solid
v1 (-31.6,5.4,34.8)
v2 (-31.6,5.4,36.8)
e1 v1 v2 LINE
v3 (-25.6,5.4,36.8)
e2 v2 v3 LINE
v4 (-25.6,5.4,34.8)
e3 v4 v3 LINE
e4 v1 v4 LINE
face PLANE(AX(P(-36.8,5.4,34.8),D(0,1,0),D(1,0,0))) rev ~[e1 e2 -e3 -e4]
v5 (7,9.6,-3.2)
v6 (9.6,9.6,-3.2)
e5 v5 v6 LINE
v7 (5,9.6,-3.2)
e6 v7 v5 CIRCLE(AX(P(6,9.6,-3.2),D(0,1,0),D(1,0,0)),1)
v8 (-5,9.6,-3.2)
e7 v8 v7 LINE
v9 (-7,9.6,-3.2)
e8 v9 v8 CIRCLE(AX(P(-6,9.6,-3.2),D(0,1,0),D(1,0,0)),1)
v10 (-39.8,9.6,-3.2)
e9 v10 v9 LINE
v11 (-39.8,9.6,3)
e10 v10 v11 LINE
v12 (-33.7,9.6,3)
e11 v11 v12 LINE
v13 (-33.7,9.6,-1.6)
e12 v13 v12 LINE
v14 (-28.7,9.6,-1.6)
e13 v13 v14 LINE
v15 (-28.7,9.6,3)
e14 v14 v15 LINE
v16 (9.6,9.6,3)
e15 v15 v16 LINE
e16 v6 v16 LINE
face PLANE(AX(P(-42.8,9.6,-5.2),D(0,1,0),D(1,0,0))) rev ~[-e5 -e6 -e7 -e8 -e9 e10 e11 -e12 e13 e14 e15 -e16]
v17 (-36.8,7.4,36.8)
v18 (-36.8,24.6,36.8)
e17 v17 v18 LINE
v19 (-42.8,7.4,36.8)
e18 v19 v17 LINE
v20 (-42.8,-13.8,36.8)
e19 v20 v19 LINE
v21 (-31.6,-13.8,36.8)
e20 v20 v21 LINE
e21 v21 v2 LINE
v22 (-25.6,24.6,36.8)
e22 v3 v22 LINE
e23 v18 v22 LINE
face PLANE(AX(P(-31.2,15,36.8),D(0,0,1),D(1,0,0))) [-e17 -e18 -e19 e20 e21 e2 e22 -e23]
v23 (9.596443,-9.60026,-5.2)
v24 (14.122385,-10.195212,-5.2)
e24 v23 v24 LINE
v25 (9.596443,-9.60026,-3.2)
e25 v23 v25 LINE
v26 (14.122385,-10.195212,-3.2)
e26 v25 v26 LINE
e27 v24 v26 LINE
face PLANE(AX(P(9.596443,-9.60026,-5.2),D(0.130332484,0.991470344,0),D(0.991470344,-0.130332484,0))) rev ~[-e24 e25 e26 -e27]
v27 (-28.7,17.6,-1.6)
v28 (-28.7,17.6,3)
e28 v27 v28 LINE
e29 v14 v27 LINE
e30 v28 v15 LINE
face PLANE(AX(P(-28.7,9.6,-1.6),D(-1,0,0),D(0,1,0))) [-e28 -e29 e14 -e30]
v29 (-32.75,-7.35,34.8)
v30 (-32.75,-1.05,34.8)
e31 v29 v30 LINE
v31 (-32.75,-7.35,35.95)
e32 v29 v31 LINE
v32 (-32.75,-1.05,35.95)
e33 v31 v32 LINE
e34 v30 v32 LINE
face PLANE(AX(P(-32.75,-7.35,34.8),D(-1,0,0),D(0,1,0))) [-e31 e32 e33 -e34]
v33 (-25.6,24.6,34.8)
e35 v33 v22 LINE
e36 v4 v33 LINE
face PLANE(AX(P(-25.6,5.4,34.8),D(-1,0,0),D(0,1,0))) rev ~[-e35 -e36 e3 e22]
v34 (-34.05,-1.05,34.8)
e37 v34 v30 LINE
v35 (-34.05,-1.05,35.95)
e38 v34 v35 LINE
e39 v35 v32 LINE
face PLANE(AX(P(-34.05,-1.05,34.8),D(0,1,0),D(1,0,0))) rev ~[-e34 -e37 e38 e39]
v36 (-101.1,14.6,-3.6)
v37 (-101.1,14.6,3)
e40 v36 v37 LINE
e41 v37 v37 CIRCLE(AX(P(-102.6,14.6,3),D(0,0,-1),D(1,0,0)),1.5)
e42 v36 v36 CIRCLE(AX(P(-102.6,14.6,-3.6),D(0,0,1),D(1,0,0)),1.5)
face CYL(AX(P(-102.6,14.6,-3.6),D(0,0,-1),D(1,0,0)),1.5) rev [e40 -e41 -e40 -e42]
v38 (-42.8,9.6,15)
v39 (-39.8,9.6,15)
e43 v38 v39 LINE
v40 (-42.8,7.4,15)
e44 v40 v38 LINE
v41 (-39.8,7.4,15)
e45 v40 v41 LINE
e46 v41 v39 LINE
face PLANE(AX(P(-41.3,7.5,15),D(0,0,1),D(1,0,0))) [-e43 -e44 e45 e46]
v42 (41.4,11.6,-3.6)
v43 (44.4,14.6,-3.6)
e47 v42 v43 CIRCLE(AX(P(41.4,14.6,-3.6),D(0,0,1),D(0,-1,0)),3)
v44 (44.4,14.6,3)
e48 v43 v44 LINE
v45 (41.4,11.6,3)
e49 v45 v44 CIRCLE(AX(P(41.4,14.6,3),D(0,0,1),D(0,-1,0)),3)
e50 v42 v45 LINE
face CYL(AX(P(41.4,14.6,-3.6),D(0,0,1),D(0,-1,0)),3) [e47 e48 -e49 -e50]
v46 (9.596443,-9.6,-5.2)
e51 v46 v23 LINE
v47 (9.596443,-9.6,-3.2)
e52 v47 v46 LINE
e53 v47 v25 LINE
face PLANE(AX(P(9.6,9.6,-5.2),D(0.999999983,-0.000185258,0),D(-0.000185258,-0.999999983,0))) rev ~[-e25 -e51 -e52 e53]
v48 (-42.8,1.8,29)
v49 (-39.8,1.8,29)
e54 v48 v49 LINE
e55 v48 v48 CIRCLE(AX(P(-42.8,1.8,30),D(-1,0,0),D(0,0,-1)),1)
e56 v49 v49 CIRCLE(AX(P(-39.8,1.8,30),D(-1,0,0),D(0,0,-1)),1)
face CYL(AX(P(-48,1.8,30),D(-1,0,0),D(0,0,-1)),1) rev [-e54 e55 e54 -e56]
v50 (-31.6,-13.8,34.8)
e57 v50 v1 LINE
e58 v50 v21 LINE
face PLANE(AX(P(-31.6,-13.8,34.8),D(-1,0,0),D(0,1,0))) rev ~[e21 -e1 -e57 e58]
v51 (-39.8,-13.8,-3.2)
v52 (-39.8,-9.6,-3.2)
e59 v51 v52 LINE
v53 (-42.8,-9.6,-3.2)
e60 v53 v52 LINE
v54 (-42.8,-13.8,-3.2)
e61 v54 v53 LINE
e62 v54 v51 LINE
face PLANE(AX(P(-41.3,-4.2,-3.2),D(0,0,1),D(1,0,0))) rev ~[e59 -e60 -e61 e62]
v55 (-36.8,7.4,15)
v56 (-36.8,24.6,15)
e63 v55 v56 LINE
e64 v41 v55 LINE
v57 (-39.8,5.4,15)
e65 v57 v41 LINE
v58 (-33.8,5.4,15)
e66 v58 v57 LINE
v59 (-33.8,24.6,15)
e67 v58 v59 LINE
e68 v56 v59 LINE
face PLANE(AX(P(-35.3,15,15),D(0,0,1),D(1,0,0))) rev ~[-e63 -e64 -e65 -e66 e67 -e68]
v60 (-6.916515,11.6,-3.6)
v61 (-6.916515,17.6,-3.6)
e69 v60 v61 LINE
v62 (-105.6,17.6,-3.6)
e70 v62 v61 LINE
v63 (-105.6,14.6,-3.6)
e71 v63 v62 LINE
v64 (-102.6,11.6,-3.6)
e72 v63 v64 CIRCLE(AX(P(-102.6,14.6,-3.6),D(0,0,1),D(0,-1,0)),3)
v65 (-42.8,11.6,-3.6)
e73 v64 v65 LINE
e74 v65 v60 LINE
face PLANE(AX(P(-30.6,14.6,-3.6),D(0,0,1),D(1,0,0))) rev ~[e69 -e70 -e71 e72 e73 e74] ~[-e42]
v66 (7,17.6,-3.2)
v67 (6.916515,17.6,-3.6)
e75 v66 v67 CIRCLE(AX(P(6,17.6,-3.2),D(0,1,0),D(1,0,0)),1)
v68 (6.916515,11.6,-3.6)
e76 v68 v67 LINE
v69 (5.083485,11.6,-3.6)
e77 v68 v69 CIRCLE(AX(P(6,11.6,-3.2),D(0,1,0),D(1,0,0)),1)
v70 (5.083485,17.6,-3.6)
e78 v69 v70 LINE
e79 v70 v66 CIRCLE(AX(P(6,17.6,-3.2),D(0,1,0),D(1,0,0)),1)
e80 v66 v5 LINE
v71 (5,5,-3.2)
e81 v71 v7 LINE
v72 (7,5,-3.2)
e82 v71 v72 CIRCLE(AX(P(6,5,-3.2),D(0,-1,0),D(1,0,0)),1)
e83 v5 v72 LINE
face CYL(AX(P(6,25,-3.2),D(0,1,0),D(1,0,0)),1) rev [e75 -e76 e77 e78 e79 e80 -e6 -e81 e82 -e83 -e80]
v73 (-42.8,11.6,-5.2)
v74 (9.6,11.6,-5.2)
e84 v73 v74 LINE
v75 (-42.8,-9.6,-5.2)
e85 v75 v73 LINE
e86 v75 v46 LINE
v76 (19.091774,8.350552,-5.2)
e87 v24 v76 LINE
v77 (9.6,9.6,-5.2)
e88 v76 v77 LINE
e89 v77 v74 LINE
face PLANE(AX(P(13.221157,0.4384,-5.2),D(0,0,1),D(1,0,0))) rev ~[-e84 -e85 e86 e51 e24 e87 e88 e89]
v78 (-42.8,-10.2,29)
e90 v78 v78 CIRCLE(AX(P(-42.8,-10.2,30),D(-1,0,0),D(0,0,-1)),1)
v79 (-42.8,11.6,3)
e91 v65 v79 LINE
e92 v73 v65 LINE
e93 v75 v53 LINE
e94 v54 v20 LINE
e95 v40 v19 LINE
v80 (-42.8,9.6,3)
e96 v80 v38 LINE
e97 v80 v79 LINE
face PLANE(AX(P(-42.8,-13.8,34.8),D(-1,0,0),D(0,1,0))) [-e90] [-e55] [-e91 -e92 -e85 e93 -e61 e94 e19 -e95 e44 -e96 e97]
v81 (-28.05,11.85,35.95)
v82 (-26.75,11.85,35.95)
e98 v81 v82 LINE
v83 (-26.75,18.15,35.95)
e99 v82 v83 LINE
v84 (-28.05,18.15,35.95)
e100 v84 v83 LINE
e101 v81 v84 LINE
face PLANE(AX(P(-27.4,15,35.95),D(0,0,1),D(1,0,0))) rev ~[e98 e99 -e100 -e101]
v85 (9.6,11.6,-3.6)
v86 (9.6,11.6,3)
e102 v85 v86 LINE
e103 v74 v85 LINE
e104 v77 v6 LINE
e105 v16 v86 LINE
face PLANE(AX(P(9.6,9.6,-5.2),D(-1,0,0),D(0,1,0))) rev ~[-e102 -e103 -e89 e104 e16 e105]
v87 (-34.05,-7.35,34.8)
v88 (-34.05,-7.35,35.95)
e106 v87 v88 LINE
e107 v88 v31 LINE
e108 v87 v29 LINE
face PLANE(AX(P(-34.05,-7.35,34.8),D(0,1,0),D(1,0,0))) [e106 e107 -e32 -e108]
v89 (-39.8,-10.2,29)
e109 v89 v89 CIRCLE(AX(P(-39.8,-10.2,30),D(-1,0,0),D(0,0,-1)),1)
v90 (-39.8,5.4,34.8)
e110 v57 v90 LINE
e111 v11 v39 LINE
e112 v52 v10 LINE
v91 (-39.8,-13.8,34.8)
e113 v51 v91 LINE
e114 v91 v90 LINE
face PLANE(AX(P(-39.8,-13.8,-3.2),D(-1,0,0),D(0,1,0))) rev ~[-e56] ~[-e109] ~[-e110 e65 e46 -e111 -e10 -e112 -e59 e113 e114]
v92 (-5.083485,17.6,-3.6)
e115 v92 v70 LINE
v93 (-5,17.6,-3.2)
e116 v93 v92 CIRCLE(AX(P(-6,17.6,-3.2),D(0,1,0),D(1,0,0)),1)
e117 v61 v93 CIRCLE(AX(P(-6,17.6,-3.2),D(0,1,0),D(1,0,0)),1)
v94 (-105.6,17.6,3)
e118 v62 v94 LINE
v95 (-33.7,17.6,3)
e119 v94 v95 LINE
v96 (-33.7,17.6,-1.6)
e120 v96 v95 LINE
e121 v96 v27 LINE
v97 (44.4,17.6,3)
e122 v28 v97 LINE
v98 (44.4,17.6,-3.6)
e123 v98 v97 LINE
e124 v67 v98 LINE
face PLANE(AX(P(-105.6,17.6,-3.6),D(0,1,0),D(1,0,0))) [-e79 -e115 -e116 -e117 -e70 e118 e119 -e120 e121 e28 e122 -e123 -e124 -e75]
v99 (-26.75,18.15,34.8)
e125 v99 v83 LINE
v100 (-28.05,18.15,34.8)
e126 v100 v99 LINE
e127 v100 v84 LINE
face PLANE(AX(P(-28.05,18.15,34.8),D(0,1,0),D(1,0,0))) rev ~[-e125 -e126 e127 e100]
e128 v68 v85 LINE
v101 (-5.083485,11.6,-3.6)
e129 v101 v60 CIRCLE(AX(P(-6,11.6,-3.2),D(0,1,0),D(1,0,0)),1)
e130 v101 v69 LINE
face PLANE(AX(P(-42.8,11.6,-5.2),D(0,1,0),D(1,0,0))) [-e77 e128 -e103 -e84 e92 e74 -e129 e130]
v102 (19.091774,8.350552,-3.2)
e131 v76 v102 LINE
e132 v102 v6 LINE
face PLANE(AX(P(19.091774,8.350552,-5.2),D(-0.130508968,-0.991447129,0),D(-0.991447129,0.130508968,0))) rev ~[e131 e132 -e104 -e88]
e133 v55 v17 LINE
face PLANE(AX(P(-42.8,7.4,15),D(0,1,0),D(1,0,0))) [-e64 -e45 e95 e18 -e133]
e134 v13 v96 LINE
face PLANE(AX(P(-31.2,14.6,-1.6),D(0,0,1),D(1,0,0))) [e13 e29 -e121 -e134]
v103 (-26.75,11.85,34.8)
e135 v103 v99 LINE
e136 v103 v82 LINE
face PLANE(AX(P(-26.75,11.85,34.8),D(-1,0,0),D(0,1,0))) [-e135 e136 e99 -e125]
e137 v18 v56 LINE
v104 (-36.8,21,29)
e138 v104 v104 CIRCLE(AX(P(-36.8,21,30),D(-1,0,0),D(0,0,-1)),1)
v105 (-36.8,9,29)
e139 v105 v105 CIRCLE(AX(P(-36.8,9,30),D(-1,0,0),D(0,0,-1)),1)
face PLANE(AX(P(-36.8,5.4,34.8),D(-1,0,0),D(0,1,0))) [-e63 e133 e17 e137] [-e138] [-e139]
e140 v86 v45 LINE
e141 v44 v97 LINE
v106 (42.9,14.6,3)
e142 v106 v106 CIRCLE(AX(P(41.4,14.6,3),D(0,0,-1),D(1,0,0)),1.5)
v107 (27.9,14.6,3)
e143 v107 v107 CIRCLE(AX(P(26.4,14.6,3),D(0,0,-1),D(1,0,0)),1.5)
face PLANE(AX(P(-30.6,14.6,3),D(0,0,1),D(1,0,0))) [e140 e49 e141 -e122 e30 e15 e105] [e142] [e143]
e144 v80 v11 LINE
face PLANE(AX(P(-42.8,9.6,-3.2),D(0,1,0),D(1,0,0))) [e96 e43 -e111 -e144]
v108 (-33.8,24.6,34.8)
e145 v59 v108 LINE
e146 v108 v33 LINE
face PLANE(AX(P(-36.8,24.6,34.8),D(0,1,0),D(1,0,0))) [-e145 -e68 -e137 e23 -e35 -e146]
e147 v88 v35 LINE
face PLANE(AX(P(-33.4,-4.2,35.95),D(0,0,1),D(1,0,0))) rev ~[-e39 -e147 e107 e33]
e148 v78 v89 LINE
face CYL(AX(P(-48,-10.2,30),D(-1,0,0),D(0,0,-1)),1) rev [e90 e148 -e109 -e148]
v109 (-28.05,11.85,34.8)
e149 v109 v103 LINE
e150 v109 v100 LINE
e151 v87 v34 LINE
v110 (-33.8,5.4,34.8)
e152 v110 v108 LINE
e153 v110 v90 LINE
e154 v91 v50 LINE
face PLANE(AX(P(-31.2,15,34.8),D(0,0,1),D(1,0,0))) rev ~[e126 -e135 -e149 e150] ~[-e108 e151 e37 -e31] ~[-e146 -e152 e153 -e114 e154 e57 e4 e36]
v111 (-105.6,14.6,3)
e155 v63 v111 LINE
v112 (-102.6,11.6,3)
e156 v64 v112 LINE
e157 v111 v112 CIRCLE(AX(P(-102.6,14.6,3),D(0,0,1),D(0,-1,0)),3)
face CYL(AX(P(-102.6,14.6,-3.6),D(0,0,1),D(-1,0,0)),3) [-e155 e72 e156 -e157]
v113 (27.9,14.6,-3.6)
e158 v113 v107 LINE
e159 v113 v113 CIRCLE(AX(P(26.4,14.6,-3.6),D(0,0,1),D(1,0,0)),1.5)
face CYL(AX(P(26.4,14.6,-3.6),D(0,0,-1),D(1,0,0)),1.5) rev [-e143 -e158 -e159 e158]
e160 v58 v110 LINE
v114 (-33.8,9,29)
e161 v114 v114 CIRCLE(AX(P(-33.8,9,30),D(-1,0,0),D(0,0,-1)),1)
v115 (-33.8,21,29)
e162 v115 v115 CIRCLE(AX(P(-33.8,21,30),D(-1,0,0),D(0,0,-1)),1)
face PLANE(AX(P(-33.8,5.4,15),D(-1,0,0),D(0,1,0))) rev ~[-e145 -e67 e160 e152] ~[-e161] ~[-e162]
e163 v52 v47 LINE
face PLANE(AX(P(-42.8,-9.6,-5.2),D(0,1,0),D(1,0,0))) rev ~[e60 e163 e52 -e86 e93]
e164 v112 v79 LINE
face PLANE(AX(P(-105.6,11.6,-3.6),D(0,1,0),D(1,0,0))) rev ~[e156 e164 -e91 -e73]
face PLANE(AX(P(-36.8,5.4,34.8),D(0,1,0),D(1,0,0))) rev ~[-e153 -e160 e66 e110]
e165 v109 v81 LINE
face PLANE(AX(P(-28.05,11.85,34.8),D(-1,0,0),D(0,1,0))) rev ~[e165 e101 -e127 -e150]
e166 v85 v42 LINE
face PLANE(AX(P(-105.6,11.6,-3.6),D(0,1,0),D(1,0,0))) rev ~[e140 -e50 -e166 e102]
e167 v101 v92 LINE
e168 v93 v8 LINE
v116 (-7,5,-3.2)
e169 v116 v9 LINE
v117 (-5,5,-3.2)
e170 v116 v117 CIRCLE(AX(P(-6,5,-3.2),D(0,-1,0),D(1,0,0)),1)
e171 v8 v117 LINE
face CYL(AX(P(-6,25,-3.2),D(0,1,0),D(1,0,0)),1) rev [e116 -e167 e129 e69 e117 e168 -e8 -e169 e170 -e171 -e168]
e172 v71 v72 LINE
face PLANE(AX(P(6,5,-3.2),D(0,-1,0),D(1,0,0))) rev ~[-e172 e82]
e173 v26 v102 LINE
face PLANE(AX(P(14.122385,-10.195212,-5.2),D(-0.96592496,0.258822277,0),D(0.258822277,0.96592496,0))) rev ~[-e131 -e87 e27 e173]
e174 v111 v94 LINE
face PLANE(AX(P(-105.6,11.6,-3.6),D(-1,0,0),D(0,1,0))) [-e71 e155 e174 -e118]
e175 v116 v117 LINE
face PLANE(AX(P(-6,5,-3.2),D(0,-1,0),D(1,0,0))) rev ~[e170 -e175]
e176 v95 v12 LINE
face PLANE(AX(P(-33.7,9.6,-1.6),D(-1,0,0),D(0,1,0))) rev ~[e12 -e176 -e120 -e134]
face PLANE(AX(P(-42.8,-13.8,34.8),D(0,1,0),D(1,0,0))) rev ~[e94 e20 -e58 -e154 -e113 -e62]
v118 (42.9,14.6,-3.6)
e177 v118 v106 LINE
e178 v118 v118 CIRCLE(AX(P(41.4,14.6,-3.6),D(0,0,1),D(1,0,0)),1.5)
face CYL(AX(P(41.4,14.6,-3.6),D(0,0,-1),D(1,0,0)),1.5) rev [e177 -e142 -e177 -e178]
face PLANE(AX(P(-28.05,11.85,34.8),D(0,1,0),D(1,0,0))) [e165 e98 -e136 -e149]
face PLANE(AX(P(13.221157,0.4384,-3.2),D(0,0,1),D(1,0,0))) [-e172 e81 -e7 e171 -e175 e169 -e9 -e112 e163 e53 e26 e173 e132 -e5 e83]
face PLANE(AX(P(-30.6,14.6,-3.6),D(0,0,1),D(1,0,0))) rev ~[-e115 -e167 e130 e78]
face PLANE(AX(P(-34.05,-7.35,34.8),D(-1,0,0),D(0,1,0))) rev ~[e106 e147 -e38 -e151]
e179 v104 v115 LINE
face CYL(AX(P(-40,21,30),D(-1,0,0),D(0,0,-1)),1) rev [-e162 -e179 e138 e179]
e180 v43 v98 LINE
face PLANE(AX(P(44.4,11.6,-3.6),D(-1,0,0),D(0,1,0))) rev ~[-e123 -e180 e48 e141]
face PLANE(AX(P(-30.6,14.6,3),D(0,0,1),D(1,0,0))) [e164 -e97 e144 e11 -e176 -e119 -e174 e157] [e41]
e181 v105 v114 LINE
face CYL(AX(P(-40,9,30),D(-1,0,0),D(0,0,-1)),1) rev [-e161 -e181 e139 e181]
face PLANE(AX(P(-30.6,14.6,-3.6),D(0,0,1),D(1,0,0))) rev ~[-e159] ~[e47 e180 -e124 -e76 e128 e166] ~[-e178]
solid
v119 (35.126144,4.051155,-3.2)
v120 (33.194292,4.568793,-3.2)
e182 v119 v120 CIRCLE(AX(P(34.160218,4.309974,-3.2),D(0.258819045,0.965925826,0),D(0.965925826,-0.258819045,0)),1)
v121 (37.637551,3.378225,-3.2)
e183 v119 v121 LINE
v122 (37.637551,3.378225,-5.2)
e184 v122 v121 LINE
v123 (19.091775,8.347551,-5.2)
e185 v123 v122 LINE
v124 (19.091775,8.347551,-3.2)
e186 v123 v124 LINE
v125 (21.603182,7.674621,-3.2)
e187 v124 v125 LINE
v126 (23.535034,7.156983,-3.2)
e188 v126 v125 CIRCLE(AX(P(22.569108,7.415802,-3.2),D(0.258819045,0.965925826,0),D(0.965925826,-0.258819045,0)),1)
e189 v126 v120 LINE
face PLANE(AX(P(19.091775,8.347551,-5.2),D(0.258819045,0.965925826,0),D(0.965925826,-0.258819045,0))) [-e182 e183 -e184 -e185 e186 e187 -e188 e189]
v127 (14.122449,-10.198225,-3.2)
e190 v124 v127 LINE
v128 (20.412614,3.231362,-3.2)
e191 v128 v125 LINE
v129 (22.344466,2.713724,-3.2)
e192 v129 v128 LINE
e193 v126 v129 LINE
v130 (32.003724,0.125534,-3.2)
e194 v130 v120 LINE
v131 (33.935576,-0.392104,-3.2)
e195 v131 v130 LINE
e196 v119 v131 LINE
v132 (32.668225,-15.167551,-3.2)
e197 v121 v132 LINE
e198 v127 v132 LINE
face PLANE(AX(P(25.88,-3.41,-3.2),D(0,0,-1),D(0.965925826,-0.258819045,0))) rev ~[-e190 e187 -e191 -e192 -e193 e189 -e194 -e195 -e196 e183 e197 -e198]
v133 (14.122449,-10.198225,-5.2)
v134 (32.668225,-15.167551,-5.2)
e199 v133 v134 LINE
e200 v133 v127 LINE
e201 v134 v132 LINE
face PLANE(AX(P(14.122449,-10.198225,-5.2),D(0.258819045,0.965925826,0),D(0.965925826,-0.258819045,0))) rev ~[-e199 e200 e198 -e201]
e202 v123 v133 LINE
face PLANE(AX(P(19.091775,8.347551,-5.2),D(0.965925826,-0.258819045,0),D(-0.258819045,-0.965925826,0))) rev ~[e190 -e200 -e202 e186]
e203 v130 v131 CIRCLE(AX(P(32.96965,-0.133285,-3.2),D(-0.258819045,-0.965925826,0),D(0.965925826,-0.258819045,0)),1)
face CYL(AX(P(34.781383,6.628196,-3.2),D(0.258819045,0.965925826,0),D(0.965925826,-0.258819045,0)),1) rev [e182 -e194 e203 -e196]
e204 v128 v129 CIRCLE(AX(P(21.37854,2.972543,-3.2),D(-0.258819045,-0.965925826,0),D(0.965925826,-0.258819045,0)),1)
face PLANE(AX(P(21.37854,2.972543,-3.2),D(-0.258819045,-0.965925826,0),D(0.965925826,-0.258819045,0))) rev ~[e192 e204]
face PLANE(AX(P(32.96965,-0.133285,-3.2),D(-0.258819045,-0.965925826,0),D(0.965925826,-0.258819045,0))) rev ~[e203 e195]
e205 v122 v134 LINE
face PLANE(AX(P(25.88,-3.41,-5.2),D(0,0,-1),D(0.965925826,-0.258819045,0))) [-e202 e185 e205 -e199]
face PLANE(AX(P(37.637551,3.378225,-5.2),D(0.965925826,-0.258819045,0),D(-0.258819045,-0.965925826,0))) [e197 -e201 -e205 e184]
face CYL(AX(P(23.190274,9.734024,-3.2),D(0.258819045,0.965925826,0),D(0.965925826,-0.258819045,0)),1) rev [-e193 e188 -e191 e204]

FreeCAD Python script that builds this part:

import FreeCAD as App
import Part
import Sketcher
from FreeCAD import Vector


def edges_at(feature, points):
    """Names of the edges that pass closest to the given points."""
    edges = feature.Shape.Edges
    near = lambda p: min(range(len(edges)), key=lambda i: edges[i].distToShape(Part.Vertex(*p))[0])
    return sorted({f"Edge{near(p) + 1}" for p in points})


def add_polygon(sketch, points):
    """Adds a closed chain of lines whose ends are joined by coincident constraints."""
    first, n = sketch.GeometryCount, len(points)
    for a, b in zip(points, points[1:] + points[:1]):
        sketch.addGeometry(Part.LineSegment(App.Vector(*a, 0), App.Vector(*b, 0)), False)
    for i in range(n):
        sketch.addConstraint(Sketcher.Constraint("Coincident", first + i, 2, first + (i + 1) % n, 1))

doc = App.newDocument("Part")
params = doc.addObject("Spreadsheet::Sheet", "Params")
for row, (alias, value) in enumerate([
    ("sketch1_width", "5 mm"),
    ("sketch1_height", "10 mm"),
    ("pad1_length", "5.4 mm"),
    ("sketch2_diameter", "2 mm"),
    ("pad2_length", "7 mm"),
    ("sketch3_diameter", "2 mm"),
    ("pad3_length", "7 mm"),
    ("sketch4_diameter", "2 mm"),
    ("pad4_length", "10 mm"),
    ("sketch5_diameter", "2 mm"),
    ("pad5_length", "10 mm"),
    ("sketch6_diameter", "2 mm"),
    ("pad6_length", "10 mm"),
    ("sketch7_diameter", "2 mm"),
    ("pad7_length", "10 mm"),
    ("sketch8_diameter", "2 mm"),
    ("pad8_length", "20 mm"),
    ("sketch9_diameter", "2 mm"),
    ("pad9_length", "20 mm"),
    ("sketch10_height", "2 mm"),
    ("sketch10_width", "52.4 mm"),
    ("pad10_length", "8.2 mm"),
    ("pad11_length", "2 mm"),
    ("sketch12_width", "19.2 mm"),
    ("pad12_length", "2 mm"),
    ("sketch13_width", "52.4 mm"),
    ("sketch13_height", "19.2 mm"),
    ("pad13_length", "2 mm"),
    ("sketch14_diameter", "3 mm"),
    ("pad14_length", "10 mm"),
    ("sketch15_diameter", "3 mm"),
    ("pad15_length", "10 mm"),
    ("sketch16_diameter", "3 mm"),
    ("pad16_length", "10 mm"),
    ("sketch17_width", "150 mm"),
    ("sketch17_height", "6 mm"),
    ("pad17_length", "6.6 mm"),
    ("fillet_radius", "3 mm"),
    ("sketch18_width", "6 mm"),
    ("sketch18_height", "2 mm"),
    ("pad18_length", "21.8 mm"),
    ("sketch19_width", "1.3 mm"),
    ("sketch19_height", "6.3 mm"),
    ("pad19_length", "1.15 mm"),
    ("sketch20_width", "11.2 mm"),
    ("sketch20_height", "19.2 mm"),
    ("pad20_length", "2 mm"),
    ("sketch21_width", "3 mm"),
    ("sketch21_height", "19.2 mm"),
    ("pad21_length", "38 mm"),
    ("sketch22_width", "1.3 mm"),
    ("sketch22_height", "6.3 mm"),
    ("pad22_length", "1.15 mm"),
    ("sketch23_width", "11.2 mm"),
    ("sketch23_height", "19.2 mm"),
    ("pad23_length", "2 mm"),
    ("sketch24_width", "3 mm"),
    ("sketch24_height", "19.2 mm"),
    ("pad24_length", "19.8 mm"),
    ("sketch25_width", "3 mm"),
    ("sketch25_height", "4.2 mm"),
    ("pad25_length", "18.2 mm"),
], start=1):
    params.set(f"A{row}", alias)
    params.set(f"B{row}", "=" + value)
    params.setAlias(f"B{row}", alias)

body = doc.addObject("PartDesign::Body", "Body")

# Sketch on XY plane
sketch1 = doc.addObject("Sketcher::SketchObject", "Sketch")
body.addObject(sketch1)
sketch1.AttachmentSupport = (doc.XY_Plane, [""])
sketch1.MapMode = "FlatFace"
sketch1.AttachmentOffset = App.Placement(Vector(0, 0, 8.4), App.Rotation())
add_polygon(sketch1, [(-33.7, 19.6), (-33.7, 9.6), (-28.7, 9.6), (-28.7, 19.6)])  # lines 0-3
sketch1.addConstraint(Sketcher.Constraint("Vertical", 0))
sketch1.addConstraint(Sketcher.Constraint("Horizontal", 1))
sketch1.addConstraint(Sketcher.Constraint("Vertical", 2))
sketch1.addConstraint(Sketcher.Constraint("Horizontal", 3))
sketch1.addConstraint(Sketcher.Constraint("DistanceX", 1, 1, 1, 2, 5.0))
sketch1.addConstraint(Sketcher.Constraint("DistanceY", 0, 2, 0, 1, 10.0))
sketch1.addConstraint(Sketcher.Constraint("DistanceX", 0, 2, -1, 1, 33.7))
sketch1.addConstraint(Sketcher.Constraint("DistanceY", -1, 1, 0, 2, 9.6))
sketch1.setExpression("Constraints[8]", "Params.sketch1_width")
sketch1.setExpression("Constraints[9]", "Params.sketch1_height")
pad1 = doc.addObject("PartDesign::Pad", "Pad")
body.addObject(pad1)
pad1.Profile = sketch1
pad1.setExpression("Length", "Params.pad1_length")
body2 = doc.addObject("PartDesign::Body", "Body001")
doc.recompute()

body.Placement = App.Placement(Vector(0, 0, -10), App.Rotation(Vector(0, 0, 1), 0))
boolean = doc.addObject("PartDesign::Boolean", "Boolean")
body2.addObject(boolean)
boolean.Type = "Fuse"
boolean.addObjects([body])
body3 = doc.addObject("PartDesign::Body", "Body002")

# Sketch on XZ plane
sketch2 = doc.addObject("Sketcher::SketchObject", "Sketch001")
body3.addObject(sketch2)
sketch2.AttachmentSupport = (doc.getObject("XZ_Plane002"), [""])
sketch2.MapMode = "FlatFace"
sketch2.AttachmentOffset = App.Placement(Vector(0, 0, -12), App.Rotation())
sketch2.addGeometry(Part.Circle(Vector(-6, -3.2, 0), Vector(0, 0, 1), 1), False)
sketch2.addConstraint(Sketcher.Constraint("Diameter", 0, 2.0))
sketch2.addConstraint(Sketcher.Constraint("DistanceX", 0, 3, -1, 1, 6.0))
sketch2.addConstraint(Sketcher.Constraint("DistanceY", 0, 3, -1, 1, 3.2))
sketch2.setExpression("Constraints[0]", "Params.sketch2_diameter")
pad2 = doc.addObject("PartDesign::Pad", "Pad001")
body3.addObject(pad2)
pad2.Profile = sketch2
pad2.setExpression("Length", "Params.pad2_length")
body4 = doc.addObject("PartDesign::Body", "Body003")
body4.AllowCompound = True

# Sketch on XZ plane
sketch3 = doc.addObject("Sketcher::SketchObject", "Sketch002")
body4.addObject(sketch3)
sketch3.AttachmentSupport = (doc.getObject("XZ_Plane003"), [""])
sketch3.MapMode = "FlatFace"
sketch3.AttachmentOffset = App.Placement(Vector(0, 0, -12), App.Rotation())
sketch3.addGeometry(Part.Circle(Vector(6, -3.2, 0), Vector(0, 0, 1), 1), False)
sketch3.addConstraint(Sketcher.Constraint("Diameter", 0, 2.0))
sketch3.addConstraint(Sketcher.Constraint("DistanceX", -1, 1, 0, 3, 6.0))
sketch3.addConstraint(Sketcher.Constraint("DistanceY", 0, 3, -1, 1, 3.2))
sketch3.setExpression("Constraints[0]", "Params.sketch3_diameter")
pad3 = doc.addObject("PartDesign::Pad", "Pad002")
body4.addObject(pad3)
pad3.Profile = sketch3
pad3.setExpression("Length", "Params.pad3_length")
doc.recompute()

boolean2 = doc.addObject("PartDesign::Boolean", "Boolean001")
body4.addObject(boolean2)
boolean2.Type = "Fuse"
boolean2.addObjects([body3])
body5 = doc.addObject("PartDesign::Body", "Body004")
body5.AllowCompound = True
doc.recompute()

body4.Placement = App.Placement(Vector(25.88, -3.41, 0), App.Rotation(Vector(0, 0, -1), 15))
boolean3 = doc.addObject("PartDesign::Boolean", "Boolean002")
body5.addObject(boolean3)
boolean3.Type = "Fuse"
boolean3.addObjects([body4])
body6 = doc.addObject("PartDesign::Body", "Body005")

# Sketch on YZ plane
sketch4 = doc.addObject("Sketcher::SketchObject", "Sketch003")
body6.addObject(sketch4)
sketch4.AttachmentSupport = (doc.getObject("YZ_Plane005"), [""])
sketch4.MapMode = "FlatFace"
sketch4.addGeometry(Part.Circle(Vector(-6, 0, 0), Vector(0, 0, 1), 1), False)
sketch4.addConstraint(Sketcher.Constraint("PointOnObject", 0, 3, -1))
sketch4.addConstraint(Sketcher.Constraint("Diameter", 0, 2.0))
sketch4.addConstraint(Sketcher.Constraint("DistanceX", 0, 3, -1, 1, 6.0))
sketch4.setExpression("Constraints[1]", "Params.sketch4_diameter")
pad4 = doc.addObject("PartDesign::Pad", "Pad003")
body6.addObject(pad4)
pad4.Profile = sketch4
pad4.setExpression("Length", "Params.pad4_length")
body7 = doc.addObject("PartDesign::Body", "Body006")
body7.AllowCompound = True

# Sketch on YZ plane
sketch5 = doc.addObject("Sketcher::SketchObject", "Sketch004")
body7.addObject(sketch5)
sketch5.AttachmentSupport = (doc.getObject("YZ_Plane006"), [""])
sketch5.MapMode = "FlatFace"
sketch5.addGeometry(Part.Circle(Vector(6, 0, 0), Vector(0, 0, 1), 1), False)
sketch5.addConstraint(Sketcher.Constraint("PointOnObject", 0, 3, -1))
sketch5.addConstraint(Sketcher.Constraint("Diameter", 0, 2.0))
sketch5.addConstraint(Sketcher.Constraint("DistanceX", -1, 1, 0, 3, 6.0))
sketch5.setExpression("Constraints[1]", "Params.sketch5_diameter")
pad5 = doc.addObject("PartDesign::Pad", "Pad004")
body7.addObject(pad5)
pad5.Profile = sketch5
pad5.setExpression("Length", "Params.pad5_length")
doc.recompute()

boolean4 = doc.addObject("PartDesign::Boolean", "Boolean003")
body7.addObject(boolean4)
boolean4.Type = "Fuse"
boolean4.addObjects([body6])
body8 = doc.addObject("PartDesign::Body", "Body007")
body8.AllowCompound = True
doc.recompute()

body7.Placement = App.Placement(Vector(-40, 15, 30), App.Rotation(Vector(0, 0, 1), 0))
boolean5 = doc.addObject("PartDesign::Boolean", "Boolean004")
body8.addObject(boolean5)
boolean5.Type = "Fuse"
boolean5.addObjects([body7])
body9 = doc.addObject("PartDesign::Body", "Body008")

# Sketch on YZ plane
sketch6 = doc.addObject("Sketcher::SketchObject", "Sketch005")
body9.addObject(sketch6)
sketch6.AttachmentSupport = (doc.getObject("YZ_Plane008"), [""])
sketch6.MapMode = "FlatFace"
sketch6.addGeometry(Part.Circle(Vector(-6, 0, 0), Vector(0, 0, 1), 1), False)
sketch6.addConstraint(Sketcher.Constraint("PointOnObject", 0, 3, -1))
sketch6.addConstraint(Sketcher.Constraint("Diameter", 0, 2.0))
sketch6.addConstraint(Sketcher.Constraint("DistanceX", 0, 3, -1, 1, 6.0))
sketch6.setExpression("Constraints[1]", "Params.sketch6_diameter")
pad6 = doc.addObject("PartDesign::Pad", "Pad005")
body9.addObject(pad6)
pad6.Profile = sketch6
pad6.setExpression("Length", "Params.pad6_length")
body10 = doc.addObject("PartDesign::Body", "Body009")
body10.AllowCompound = True

# Sketch on YZ plane
sketch7 = doc.addObject("Sketcher::SketchObject", "Sketch006")
body10.addObject(sketch7)
sketch7.AttachmentSupport = (doc.getObject("YZ_Plane009"), [""])
sketch7.MapMode = "FlatFace"
sketch7.addGeometry(Part.Circle(Vector(6, 0, 0), Vector(0, 0, 1), 1), False)
sketch7.addConstraint(Sketcher.Constraint("PointOnObject", 0, 3, -1))
sketch7.addConstraint(Sketcher.Constraint("Diameter", 0, 2.0))
sketch7.addConstraint(Sketcher.Constraint("DistanceX", -1, 1, 0, 3, 6.0))
sketch7.setExpression("Constraints[1]", "Params.sketch7_diameter")
pad7 = doc.addObject("PartDesign::Pad", "Pad006")
body10.addObject(pad7)
pad7.Profile = sketch7
pad7.setExpression("Length", "Params.pad7_length")
doc.recompute()

boolean6 = doc.addObject("PartDesign::Boolean", "Boolean005")
body10.addObject(boolean6)
boolean6.Type = "Fuse"
boolean6.addObjects([body9])
body11 = doc.addObject("PartDesign::Body", "Body010")
body11.AllowCompound = True
doc.recompute()

body10.Placement = App.Placement(Vector(-48, -4.2, 30), App.Rotation(Vector(0, 0, 1), 0))
boolean7 = doc.addObject("PartDesign::Boolean", "Boolean006")
body11.addObject(boolean7)
boolean7.Type = "Fuse"
boolean7.addObjects([body10])
body12 = doc.addObject("PartDesign::Body", "Body011")

# Sketch on XZ plane
sketch8 = doc.addObject("Sketcher::SketchObject", "Sketch007")
body12.addObject(sketch8)
sketch8.AttachmentSupport = (doc.getObject("XZ_Plane011"), [""])
sketch8.MapMode = "FlatFace"
sketch8.AttachmentOffset = App.Placement(Vector(0, 0, -25), App.Rotation())
sketch8.addGeometry(Part.Circle(Vector(-6, -3.2, 0), Vector(0, 0, 1), 1), False)
sketch8.addConstraint(Sketcher.Constraint("Diameter", 0, 2.0))
sketch8.addConstraint(Sketcher.Constraint("DistanceX", 0, 3, -1, 1, 6.0))
sketch8.addConstraint(Sketcher.Constraint("DistanceY", 0, 3, -1, 1, 3.2))
sketch8.setExpression("Constraints[0]", "Params.sketch8_diameter")
pad8 = doc.addObject("PartDesign::Pad", "Pad007")
body12.addObject(pad8)
pad8.Profile = sketch8
pad8.setExpression("Length", "Params.pad8_length")
body13 = doc.addObject("PartDesign::Body", "Body012")
body13.AllowCompound = True

# Sketch on XZ plane
sketch9 = doc.addObject("Sketcher::SketchObject", "Sketch008")
body13.addObject(sketch9)
sketch9.AttachmentSupport = (doc.getObject("XZ_Plane012"), [""])
sketch9.MapMode = "FlatFace"
sketch9.AttachmentOffset = App.Placement(Vector(0, 0, -25), App.Rotation())
sketch9.addGeometry(Part.Circle(Vector(6, -3.2, 0), Vector(0, 0, 1), 1), False)
sketch9.addConstraint(Sketcher.Constraint("Diameter", 0, 2.0))
sketch9.addConstraint(Sketcher.Constraint("DistanceX", -1, 1, 0, 3, 6.0))
sketch9.addConstraint(Sketcher.Constraint("DistanceY", 0, 3, -1, 1, 3.2))
sketch9.setExpression("Constraints[0]", "Params.sketch9_diameter")
pad9 = doc.addObject("PartDesign::Pad", "Pad008")
body13.addObject(pad9)
pad9.Profile = sketch9
pad9.setExpression("Length", "Params.pad9_length")
doc.recompute()

boolean8 = doc.addObject("PartDesign::Boolean", "Boolean007")
body13.addObject(boolean8)
boolean8.Type = "Fuse"
boolean8.addObjects([body12])
doc.recompute()

boolean9 = doc.addObject("PartDesign::Boolean", "Boolean008")
body13.addObject(boolean9)
boolean9.Type = "Fuse"
boolean9.addObjects([body5])
doc.recompute()

boolean10 = doc.addObject("PartDesign::Boolean", "Boolean009")
body13.addObject(boolean10)
boolean10.Type = "Fuse"
boolean10.addObjects([body8])
doc.recompute()

boolean11 = doc.addObject("PartDesign::Boolean", "Boolean010")
body13.addObject(boolean11)
boolean11.Type = "Fuse"
boolean11.addObjects([body11])
body14 = doc.addObject("PartDesign::Body", "Body013")

# Sketch on XY plane
sketch10 = doc.addObject("Sketcher::SketchObject", "Sketch009")
body14.addObject(sketch10)
sketch10.AttachmentSupport = (doc.getObject("XY_Plane013"), [""])
sketch10.MapMode = "FlatFace"
sketch10.AttachmentOffset = App.Placement(Vector(0, 0, -5.2), App.Rotation())
add_polygon(sketch10, [(-42.8, 11.6), (-42.8, 9.6), (9.6, 9.6), (9.6, 11.6)])  # lines 0-3
sketch10.addConstraint(Sketcher.Constraint("Vertical", 0))
sketch10.addConstraint(Sketcher.Constraint("Horizontal", 1))
sketch10.addConstraint(Sketcher.Constraint("Vertical", 2))
sketch10.addConstraint(Sketcher.Constraint("Horizontal", 3))
sketch10.addConstraint(Sketcher.Constraint("DistanceY", 0, 2, 0, 1, 2.0))
sketch10.addConstraint(Sketcher.Constraint("DistanceX", 1, 1, 1, 2, 52.4))
sketch10.addConstraint(Sketcher.Constraint("DistanceX", 0, 2, -1, 1, 42.8))
sketch10.addConstraint(Sketcher.Constraint("DistanceY", -1, 1, 0, 2, 9.6))
sketch10.setExpression("Constraints[8]", "Params.sketch10_height")
sketch10.setExpression("Constraints[9]", "Params.sketch10_width")
pad10 = doc.addObject("PartDesign::Pad", "Pad009")
body14.addObject(pad10)
pad10.Profile = sketch10
pad10.setExpression("Length", "Params.pad10_length")
body15 = doc.addObject("PartDesign::Body", "Body014")

# Sketch on XY plane
sketch11 = doc.addObject("Sketcher::SketchObject", "Sketch010")
body15.addObject(sketch11)
sketch11.AttachmentSupport = (doc.getObject("XY_Plane014"), [""])
sketch11.MapMode = "FlatFace"
add_polygon(sketch11, [(9.596443, -9.60026), (14.122385, -10.195212), (19.091774, 8.350552), (9.6, 9.6)])  # lines 0-3
sketch11.addConstraint(Sketcher.Constraint("DistanceX", -1, 1, 2, 2, 9.6))
sketch11.addConstraint(Sketcher.Constraint("DistanceY", -1, 1, 2, 2, 9.6))
sketch11.addConstraint(Sketcher.Constraint("Distance", 0, 4.564879))
sketch11.addConstraint(Sketcher.Constraint("Distance", 3, 19.20026))
sketch11.addConstraint(Sketcher.Constraint("DistanceX", 0, 2, 1, 2, 4.969389))
sketch11.addConstraint(Sketcher.Constraint("DistanceY", 0, 2, 2, 2, 19.795212))
sketch11.addConstraint(Sketcher.Constraint("DistanceY", 3, 2, 1, 2, 17.950812))
sketch11.addConstraint(Sketcher.Constraint("Distance", 2, 9.573656))
pad11 = doc.addObject("PartDesign::Pad", "Pad010")
body15.addObject(pad11)
pad11.Profile = sketch11
pad11.setExpression("Length", "Params.pad11_length")
body16 = doc.addObject("PartDesign::Body", "Body015")
doc.recompute()

body15.Placement = App.Placement(Vector(0, 0, -5.2), App.Rotation(Vector(0, 0, 1), 0))
boolean12 = doc.addObject("PartDesign::Boolean", "Boolean011")
body16.addObject(boolean12)
boolean12.Type = "Fuse"
boolean12.addObjects([body15])
body17 = doc.addObject("PartDesign::Body", "Body016")

# Sketch on XY plane
sketch12 = doc.addObject("Sketcher::SketchObject", "Sketch011")
body17.addObject(sketch12)
sketch12.AttachmentSupport = (doc.getObject("XY_Plane016"), [""])
sketch12.MapMode = "FlatFace"
sketch12.AttachmentOffset = App.Placement(Vector(0, 0, -5.2), App.Rotation())
add_polygon(sketch12, [(-9.6, -9.6), (-9.6, 9.6), (9.6, 9.6), (9.6, -9.6)])  # lines 0-3
sketch12.addConstraint(Sketcher.Constraint("Vertical", 0))
sketch12.addConstraint(Sketcher.Constraint("Horizontal", 1))
sketch12.addConstraint(Sketcher.Constraint("Vertical", 2))
sketch12.addConstraint(Sketcher.Constraint("Horizontal", 3))
sketch12.addConstraint(Sketcher.Constraint("Symmetric", 0, 2, 2, 2, -1, 1))
sketch12.addConstraint(Sketcher.Constraint("Equal", 3, 0))
sketch12.addConstraint(Sketcher.Constraint("DistanceX", 1, 1, 1, 2, 19.2))
sketch12.setExpression("Constraints[10]", "Params.sketch12_width")
pad12 = doc.addObject("PartDesign::Pad", "Pad011")
body17.addObject(pad12)
pad12.Profile = sketch12
pad12.setExpression("Length", "Params.pad12_length")
body18 = doc.addObject("PartDesign::Body", "Body017")
doc.recompute()

body17.Placement = App.Placement(Vector(25.88, -3.41, 0), App.Rotation(Vector(0, 0, -1), 15))
boolean13 = doc.addObject("PartDesign::Boolean", "Boolean012")
body18.addObject(boolean13)
boolean13.Type = "Fuse"
boolean13.addObjects([body17])
body19 = doc.addObject("PartDesign::Body", "Body018")
body19.AllowCompound = True

# Sketch on XY plane
sketch13 = doc.addObject("Sketcher::SketchObject", "Sketch012")
body19.addObject(sketch13)
sketch13.AttachmentSupport = (doc.getObject("XY_Plane018"), [""])
sketch13.MapMode = "FlatFace"
sketch13.AttachmentOffset = App.Placement(Vector(0, 0, -5.2), App.Rotation())
add_polygon(sketch13, [(-42.8, 9.6), (-42.8, -9.6), (9.6, -9.6), (9.6, 9.6)])  # lines 0-3
sketch13.addConstraint(Sketcher.Constraint("Vertical", 0))
sketch13.addConstraint(Sketcher.Constraint("Horizontal", 1))
sketch13.addConstraint(Sketcher.Constraint("Vertical", 2))
sketch13.addConstraint(Sketcher.Constraint("Horizontal", 3))
sketch13.addConstraint(Sketcher.Constraint("DistanceX", 1, 1, 1, 2, 52.4))
sketch13.addConstraint(Sketcher.Constraint("DistanceY", 0, 2, 0, 1, 19.2))
sketch13.addConstraint(Sketcher.Constraint("DistanceX", 0, 2, -1, 1, 42.8))
sketch13.addConstraint(Sketcher.Constraint("DistanceY", 0, 2, -1, 1, 9.6))
sketch13.setExpression("Constraints[8]", "Params.sketch13_width")
sketch13.setExpression("Constraints[9]", "Params.sketch13_height")
pad13 = doc.addObject("PartDesign::Pad", "Pad012")
body19.addObject(pad13)
pad13.Profile = sketch13
pad13.setExpression("Length", "Params.pad13_length")
doc.recompute()

boolean14 = doc.addObject("PartDesign::Boolean", "Boolean013")
body19.addObject(boolean14)
boolean14.Type = "Fuse"
boolean14.addObjects([body16])
doc.recompute()

boolean15 = doc.addObject("PartDesign::Boolean", "Boolean014")
body19.addObject(boolean15)
boolean15.Type = "Fuse"
boolean15.addObjects([body18])
body20 = doc.addObject("PartDesign::Body", "Body019")

# Sketch on XY plane
sketch14 = doc.addObject("Sketcher::SketchObject", "Sketch013")
body20.addObject(sketch14)
sketch14.AttachmentSupport = (doc.getObject("XY_Plane019"), [""])
sketch14.MapMode = "FlatFace"
sketch14.AttachmentOffset = App.Placement(Vector(0, 0, 5), App.Rotation())
sketch14.addGeometry(Part.Circle(Vector(26.4, 12.6, 0), Vector(0, 0, 1), 1.5), False)
sketch14.addConstraint(Sketcher.Constraint("Diameter", 0, 3.0))
sketch14.addConstraint(Sketcher.Constraint("DistanceX", -1, 1, 0, 3, 26.4))
sketch14.addConstraint(Sketcher.Constraint("DistanceY", -1, 1, 0, 3, 12.6))
sketch14.setExpression("Constraints[0]", "Params.sketch14_diameter")
pad14 = doc.addObject("PartDesign::Pad", "Pad013")
body20.addObject(pad14)
pad14.Profile = sketch14
pad14.setExpression("Length", "Params.pad14_length")
body21 = doc.addObject("PartDesign::Body", "Body020")

# Sketch on XY plane
sketch15 = doc.addObject("Sketcher::SketchObject", "Sketch014")
body21.addObject(sketch15)
sketch15.AttachmentSupport = (doc.getObject("XY_Plane020"), [""])
sketch15.MapMode = "FlatFace"
sketch15.AttachmentOffset = App.Placement(Vector(0, 0, 5), App.Rotation())
sketch15.addGeometry(Part.Circle(Vector(11.4, 12.6, 0), Vector(0, 0, 1), 1.5), False)
sketch15.addConstraint(Sketcher.Constraint("Diameter", 0, 3.0))
sketch15.addConstraint(Sketcher.Constraint("DistanceX", -1, 1, 0, 3, 11.4))
sketch15.addConstraint(Sketcher.Constraint("DistanceY", -1, 1, 0, 3, 12.6))
sketch15.setExpression("Constraints[0]", "Params.sketch15_diameter")
pad15 = doc.addObject("PartDesign::Pad", "Pad014")
body21.addObject(pad15)
pad15.Profile = sketch15
pad15.setExpression("Length", "Params.pad15_length")
body22 = doc.addObject("PartDesign::Body", "Body021")
body22.AllowCompound = True

# Sketch on XY plane
sketch16 = doc.addObject("Sketcher::SketchObject", "Sketch015")
body22.addObject(sketch16)
sketch16.AttachmentSupport = (doc.getObject("XY_Plane021"), [""])
sketch16.MapMode = "FlatFace"
sketch16.AttachmentOffset = App.Placement(Vector(0, 0, 5), App.Rotation())
sketch16.addGeometry(Part.Circle(Vector(-117.6, 12.6, 0), Vector(0, 0, 1), 1.5), False)
sketch16.addConstraint(Sketcher.Constraint("Diameter", 0, 3.0))
sketch16.addConstraint(Sketcher.Constraint("DistanceX", 0, 3, -1, 1, 117.6))
sketch16.addConstraint(Sketcher.Constraint("DistanceY", -1, 1, 0, 3, 12.6))
sketch16.setExpression("Constraints[0]", "Params.sketch16_diameter")
pad16 = doc.addObject("PartDesign::Pad", "Pad015")
body22.addObject(pad16)
pad16.Profile = sketch16
pad16.setExpression("Length", "Params.pad16_length")
doc.recompute()

boolean16 = doc.addObject("PartDesign::Boolean", "Boolean015")
body22.addObject(boolean16)
boolean16.Type = "Fuse"
boolean16.addObjects([body20])
doc.recompute()

boolean17 = doc.addObject("PartDesign::Boolean", "Boolean016")
body22.addObject(boolean17)
boolean17.Type = "Fuse"
boolean17.addObjects([body21])
body23 = doc.addObject("PartDesign::Body", "Body022")

# Sketch on XY plane
sketch17 = doc.addObject("Sketcher::SketchObject", "Sketch016")
body23.addObject(sketch17)
sketch17.AttachmentSupport = (doc.getObject("XY_Plane022"), [""])
sketch17.MapMode = "FlatFace"
sketch17.AttachmentOffset = App.Placement(Vector(0, 0, 5), App.Rotation())
add_polygon(sketch17, [(-120.6, 15.6), (-120.6, 9.6), (29.4, 9.6), (29.4, 15.6)])  # lines 0-3
sketch17.addConstraint(Sketcher.Constraint("Vertical", 0))
sketch17.addConstraint(Sketcher.Constraint("Horizontal", 1))
sketch17.addConstraint(Sketcher.Constraint("Vertical", 2))
sketch17.addConstraint(Sketcher.Constraint("Horizontal", 3))
sketch17.addConstraint(Sketcher.Constraint("DistanceX", 1, 1, 1, 2, 150.0))
sketch17.addConstraint(Sketcher.Constraint("DistanceY", 0, 2, 0, 1, 6.0))
sketch17.addConstraint(Sketcher.Constraint("DistanceX", 0, 2, -1, 1, 120.6))
sketch17.addConstraint(Sketcher.Constraint("DistanceY", -1, 1, 0, 2, 9.6))
sketch17.setExpression("Constraints[8]", "Params.sketch17_width")
sketch17.setExpression("Constraints[9]", "Params.sketch17_height")
pad17 = doc.addObject("PartDesign::Pad", "Pad016")
body23.addObject(pad17)
pad17.Profile = sketch17
pad17.setExpression("Length", "Params.pad17_length")
doc.recompute()

fillet = doc.addObject("PartDesign::Fillet", "Fillet")
body23.addObject(fillet)
fillet.Base = (pad17, edges_at(pad17, [(-120.6, 9.6, 8.3), (29.4, 9.6, 8.3)]))
fillet.setExpression("Radius", "Params.fillet_radius")
doc.recompute()

boolean18 = doc.addObject("PartDesign::Boolean", "Boolean017")
body23.addObject(boolean18)
boolean18.Type = "Cut"
boolean18.addObjects([body22])
body24 = doc.addObject("PartDesign::Body", "Body023")
doc.recompute()

body23.Placement = App.Placement(Vector(15, 2, -8.6), App.Rotation(Vector(0, 0, 1), 0))
boolean19 = doc.addObject("PartDesign::Boolean", "Boolean018")
body24.addObject(boolean19)
boolean19.Type = "Fuse"
boolean19.addObjects([body23])
body25 = doc.addObject("PartDesign::Body", "Body024")

# Sketch on XY plane
sketch18 = doc.addObject("Sketcher::SketchObject", "Sketch017")
body25.addObject(sketch18)
sketch18.AttachmentSupport = (doc.getObject("XY_Plane024"), [""])
sketch18.MapMode = "FlatFace"
sketch18.AttachmentOffset = App.Placement(Vector(0, 0, 15), App.Rotation())
add_polygon(sketch18, [(-42.8, 7.4), (-42.8, 5.4), (-36.8, 5.4), (-36.8, 7.4)])  # lines 0-3
sketch18.addConstraint(Sketcher.Constraint("Vertical", 0))
sketch18.addConstraint(Sketcher.Constraint("Horizontal", 1))
sketch18.addConstraint(Sketcher.Constraint("Vertical", 2))
sketch18.addConstraint(Sketcher.Constraint("Horizontal", 3))
sketch18.addConstraint(Sketcher.Constraint("DistanceX", 1, 1, 1, 2, 6.0))
sketch18.addConstraint(Sketcher.Constraint("DistanceY", 0, 2, 0, 1, 2.0))
sketch18.addConstraint(Sketcher.Constraint("DistanceX", 0, 2, -1, 1, 42.8))
sketch18.addConstraint(Sketcher.Constraint("DistanceY", -1, 1, 0, 2, 5.4))
sketch18.setExpression("Constraints[8]", "Params.sketch18_width")
sketch18.setExpression("Constraints[9]", "Params.sketch18_height")
pad18 = doc.addObject("PartDesign::Pad", "Pad017")
body25.addObject(pad18)
pad18.Profile = sketch18
pad18.setExpression("Length", "Params.pad18_length")
body26 = doc.addObject("PartDesign::Body", "Body025")

# Sketch on XY plane
sketch19 = doc.addObject("Sketcher::SketchObject", "Sketch018")
body26.addObject(sketch19)
sketch19.AttachmentSupport = (doc.getObject("XY_Plane025"), [""])
sketch19.MapMode = "FlatFace"
sketch19.AttachmentOffset = App.Placement(Vector(0, 0, 34.2), App.Rotation())
add_polygon(sketch19, [(-28.05, 18.15), (-28.05, 11.85), (-26.75, 11.85), (-26.75, 18.15)])  # lines 0-3
sketch19.addConstraint(Sketcher.Constraint("Vertical", 0))
sketch19.addConstraint(Sketcher.Constraint("Horizontal", 1))
sketch19.addConstraint(Sketcher.Constraint("Vertical", 2))
sketch19.addConstraint(Sketcher.Constraint("Horizontal", 3))
sketch19.addConstraint(Sketcher.Constraint("DistanceX", 1, 1, 1, 2, 1.3))
sketch19.addConstraint(Sketcher.Constraint("DistanceY", 0, 2, 0, 1, 6.3))
sketch19.addConstraint(Sketcher.Constraint("DistanceX", 0, 2, -1, 1, 28.05))
sketch19.addConstraint(Sketcher.Constraint("DistanceY", -1, 1, 0, 2, 11.85))
sketch19.setExpression("Constraints[8]", "Params.sketch19_width")
sketch19.setExpression("Constraints[9]", "Params.sketch19_height")
pad19 = doc.addObject("PartDesign::Pad", "Pad018")
body26.addObject(pad19)
pad19.Profile = sketch19
pad19.setExpression("Length", "Params.pad19_length")
body27 = doc.addObject("PartDesign::Body", "Body026")

# Sketch on XY plane
sketch20 = doc.addObject("Sketcher::SketchObject", "Sketch019")
body27.addObject(sketch20)
sketch20.AttachmentSupport = (doc.getObject("XY_Plane026"), [""])
sketch20.MapMode = "FlatFace"
sketch20.AttachmentOffset = App.Placement(Vector(0, 0, 34.2), App.Rotation())
add_polygon(sketch20, [(-36.8, 24.6), (-36.8, 5.4), (-25.6, 5.4), (-25.6, 24.6)])  # lines 0-3
sketch20.addConstraint(Sketcher.Constraint("Vertical", 0))
sketch20.addConstraint(Sketcher.Constraint("Horizontal", 1))
sketch20.addConstraint(Sketcher.Constraint("Vertical", 2))
sketch20.addConstraint(Sketcher.Constraint("Horizontal", 3))
sketch20.addConstraint(Sketcher.Constraint("DistanceX", 1, 1, 1, 2, 11.2))
sketch20.addConstraint(Sketcher.Constraint("DistanceY", 0, 2, 0, 1, 19.2))
sketch20.addConstraint(Sketcher.Constraint("DistanceX", 0, 2, -1, 1, 36.8))
sketch20.addConstraint(Sketcher.Constraint("DistanceY", -1, 1, 0, 2, 5.4))
sketch20.setExpression("Constraints[8]", "Params.sketch20_width")
sketch20.setExpression("Constraints[9]", "Params.sketch20_height")
pad20 = doc.addObject("PartDesign::Pad", "Pad019")
body27.addObject(pad20)
pad20.Profile = sketch20
pad20.setExpression("Length", "Params.pad20_length")
doc.recompute()

boolean20 = doc.addObject("PartDesign::Boolean", "Boolean019")
body27.addObject(boolean20)
boolean20.Type = "Cut"
boolean20.addObjects([body26])
body28 = doc.addObject("PartDesign::Body", "Body027")

# Sketch on XY plane
sketch21 = doc.addObject("Sketcher::SketchObject", "Sketch020")
body28.addObject(sketch21)
sketch21.AttachmentSupport = (doc.getObject("XY_Plane027"), [""])
sketch21.MapMode = "FlatFace"
sketch21.AttachmentOffset = App.Placement(Vector(0, 0, -3.8), App.Rotation())
add_polygon(sketch21, [(-36.8, 24.6), (-36.8, 5.4), (-33.8, 5.4), (-33.8, 24.6)])  # lines 0-3
sketch21.addConstraint(Sketcher.Constraint("Vertical", 0))
sketch21.addConstraint(Sketcher.Constraint("Horizontal", 1))
sketch21.addConstraint(Sketcher.Constraint("Vertical", 2))
sketch21.addConstraint(Sketcher.Constraint("Horizontal", 3))
sketch21.addConstraint(Sketcher.Constraint("DistanceX", 1, 1, 1, 2, 3.0))
sketch21.addConstraint(Sketcher.Constraint("DistanceY", 0, 2, 0, 1, 19.2))
sketch21.addConstraint(Sketcher.Constraint("DistanceX", 0, 2, -1, 1, 36.8))
sketch21.addConstraint(Sketcher.Constraint("DistanceY", -1, 1, 0, 2, 5.4))
sketch21.setExpression("Constraints[8]", "Params.sketch21_width")
sketch21.setExpression("Constraints[9]", "Params.sketch21_height")
pad21 = doc.addObject("PartDesign::Pad", "Pad020")
body28.addObject(pad21)
pad21.Profile = sketch21
pad21.setExpression("Length", "Params.pad21_length")
doc.recompute()

boolean21 = doc.addObject("PartDesign::Boolean", "Boolean020")
body28.addObject(boolean21)
boolean21.Type = "Fuse"
boolean21.addObjects([body27])
body29 = doc.addObject("PartDesign::Body", "Body028")
doc.recompute()

body28.Placement = App.Placement(Vector(-6, -19.2, 0.6), App.Rotation(Vector(0, 0, 1), 0))
boolean22 = doc.addObject("PartDesign::Boolean", "Boolean021")
body29.addObject(boolean22)
boolean22.Type = "Fuse"
boolean22.addObjects([body28])
body30 = doc.addObject("PartDesign::Body", "Body029")

# Sketch on XY plane
sketch22 = doc.addObject("Sketcher::SketchObject", "Sketch021")
body30.addObject(sketch22)
sketch22.AttachmentSupport = (doc.getObject("XY_Plane029"), [""])
sketch22.MapMode = "FlatFace"
sketch22.AttachmentOffset = App.Placement(Vector(0, 0, 34.2), App.Rotation())
add_polygon(sketch22, [(-28.05, 18.15), (-28.05, 11.85), (-26.75, 11.85), (-26.75, 18.15)])  # lines 0-3
sketch22.addConstraint(Sketcher.Constraint("Vertical", 0))
sketch22.addConstraint(Sketcher.Constraint("Horizontal", 1))
sketch22.addConstraint(Sketcher.Constraint("Vertical", 2))
sketch22.addConstraint(Sketcher.Constraint("Horizontal", 3))
sketch22.addConstraint(Sketcher.Constraint("DistanceX", 1, 1, 1, 2, 1.3))
sketch22.addConstraint(Sketcher.Constraint("DistanceY", 0, 2, 0, 1, 6.3))
sketch22.addConstraint(Sketcher.Constraint("DistanceX", 0, 2, -1, 1, 28.05))
sketch22.addConstraint(Sketcher.Constraint("DistanceY", -1, 1, 0, 2, 11.85))
sketch22.setExpression("Constraints[8]", "Params.sketch22_width")
sketch22.setExpression("Constraints[9]", "Params.sketch22_height")
pad22 = doc.addObject("PartDesign::Pad", "Pad021")
body30.addObject(pad22)
pad22.Profile = sketch22
pad22.setExpression("Length", "Params.pad22_length")
body31 = doc.addObject("PartDesign::Body", "Body030")

# Sketch on XY plane
sketch23 = doc.addObject("Sketcher::SketchObject", "Sketch022")
body31.addObject(sketch23)
sketch23.AttachmentSupport = (doc.getObject("XY_Plane030"), [""])
sketch23.MapMode = "FlatFace"
sketch23.AttachmentOffset = App.Placement(Vector(0, 0, 34.2), App.Rotation())
add_polygon(sketch23, [(-36.8, 24.6), (-36.8, 5.4), (-25.6, 5.4), (-25.6, 24.6)])  # lines 0-3
sketch23.addConstraint(Sketcher.Constraint("Vertical", 0))
sketch23.addConstraint(Sketcher.Constraint("Horizontal", 1))
sketch23.addConstraint(Sketcher.Constraint("Vertical", 2))
sketch23.addConstraint(Sketcher.Constraint("Horizontal", 3))
sketch23.addConstraint(Sketcher.Constraint("DistanceX", 1, 1, 1, 2, 11.2))
sketch23.addConstraint(Sketcher.Constraint("DistanceY", 0, 2, 0, 1, 19.2))
sketch23.addConstraint(Sketcher.Constraint("DistanceX", 0, 2, -1, 1, 36.8))
sketch23.addConstraint(Sketcher.Constraint("DistanceY", -1, 1, 0, 2, 5.4))
sketch23.setExpression("Constraints[8]", "Params.sketch23_width")
sketch23.setExpression("Constraints[9]", "Params.sketch23_height")
pad23 = doc.addObject("PartDesign::Pad", "Pad022")
body31.addObject(pad23)
pad23.Profile = sketch23
pad23.setExpression("Length", "Params.pad23_length")
doc.recompute()

boolean23 = doc.addObject("PartDesign::Boolean", "Boolean022")
body31.addObject(boolean23)
boolean23.Type = "Cut"
boolean23.addObjects([body30])
body32 = doc.addObject("PartDesign::Body", "Body031")

# Sketch on XY plane
sketch24 = doc.addObject("Sketcher::SketchObject", "Sketch023")
body32.addObject(sketch24)
sketch24.AttachmentSupport = (doc.getObject("XY_Plane031"), [""])
sketch24.MapMode = "FlatFace"
sketch24.AttachmentOffset = App.Placement(Vector(0, 0, 14.4), App.Rotation())
add_polygon(sketch24, [(-36.8, 24.6), (-36.8, 5.4), (-33.8, 5.4), (-33.8, 24.6)])  # lines 0-3
sketch24.addConstraint(Sketcher.Constraint("Vertical", 0))
sketch24.addConstraint(Sketcher.Constraint("Horizontal", 1))
sketch24.addConstraint(Sketcher.Constraint("Vertical", 2))
sketch24.addConstraint(Sketcher.Constraint("Horizontal", 3))
sketch24.addConstraint(Sketcher.Constraint("DistanceX", 1, 1, 1, 2, 3.0))
sketch24.addConstraint(Sketcher.Constraint("DistanceY", 0, 2, 0, 1, 19.2))
sketch24.addConstraint(Sketcher.Constraint("DistanceX", 0, 2, -1, 1, 36.8))
sketch24.addConstraint(Sketcher.Constraint("DistanceY", -1, 1, 0, 2, 5.4))
sketch24.setExpression("Constraints[8]", "Params.sketch24_width")
sketch24.setExpression("Constraints[9]", "Params.sketch24_height")
pad24 = doc.addObject("PartDesign::Pad", "Pad023")
body32.addObject(pad24)
pad24.Profile = sketch24
pad24.setExpression("Length", "Params.pad24_length")
doc.recompute()

boolean24 = doc.addObject("PartDesign::Boolean", "Boolean023")
body32.addObject(boolean24)
boolean24.Type = "Fuse"
boolean24.addObjects([body31])
body33 = doc.addObject("PartDesign::Body", "Body032")
doc.recompute()

body32.Placement = App.Placement(Vector(0, 0, 0.6), App.Rotation(Vector(0, 0, 1), 0))
boolean25 = doc.addObject("PartDesign::Boolean", "Boolean024")
body33.addObject(boolean25)
boolean25.Type = "Fuse"
boolean25.addObjects([body32])
body34 = doc.addObject("PartDesign::Body", "Body033")
body34.AllowCompound = True

# Sketch on XY plane
sketch25 = doc.addObject("Sketcher::SketchObject", "Sketch024")
body34.addObject(sketch25)
sketch25.AttachmentSupport = (doc.getObject("XY_Plane033"), [""])
sketch25.MapMode = "FlatFace"
sketch25.AttachmentOffset = App.Placement(Vector(0, 0, -3.2), App.Rotation())
add_polygon(sketch25, [(-42.8, 9.6), (-42.8, 5.4), (-39.8, 5.4), (-39.8, 9.6)])  # lines 0-3
sketch25.addConstraint(Sketcher.Constraint("Vertical", 0))
sketch25.addConstraint(Sketcher.Constraint("Horizontal", 1))
sketch25.addConstraint(Sketcher.Constraint("Vertical", 2))
sketch25.addConstraint(Sketcher.Constraint("Horizontal", 3))
sketch25.addConstraint(Sketcher.Constraint("DistanceX", 1, 1, 1, 2, 3.0))
sketch25.addConstraint(Sketcher.Constraint("DistanceY", 0, 2, 0, 1, 4.2))
sketch25.addConstraint(Sketcher.Constraint("DistanceX", 0, 2, -1, 1, 42.8))
sketch25.addConstraint(Sketcher.Constraint("DistanceY", -1, 1, 0, 2, 5.4))
sketch25.setExpression("Constraints[8]", "Params.sketch25_width")
sketch25.setExpression("Constraints[9]", "Params.sketch25_height")
pad25 = doc.addObject("PartDesign::Pad", "Pad024")
body34.addObject(pad25)
pad25.Profile = sketch25
pad25.setExpression("Length", "Params.pad25_length")
doc.recompute()

boolean26 = doc.addObject("PartDesign::Boolean", "Boolean025")
body34.addObject(boolean26)
boolean26.Type = "Fuse"
boolean26.addObjects([body14])
doc.recompute()

boolean27 = doc.addObject("PartDesign::Boolean", "Boolean026")
body34.addObject(boolean27)
boolean27.Type = "Fuse"
boolean27.addObjects([body19])
doc.recompute()

boolean28 = doc.addObject("PartDesign::Boolean", "Boolean027")
body34.addObject(boolean28)
boolean28.Type = "Fuse"
boolean28.addObjects([body24])
doc.recompute()

boolean29 = doc.addObject("PartDesign::Boolean", "Boolean028")
body34.addObject(boolean29)
boolean29.Type = "Fuse"
boolean29.addObjects([body25])
doc.recompute()

boolean30 = doc.addObject("PartDesign::Boolean", "Boolean029")
body34.addObject(boolean30)
boolean30.Type = "Fuse"
boolean30.addObjects([body29])
doc.recompute()

boolean31 = doc.addObject("PartDesign::Boolean", "Boolean030")
body34.addObject(boolean31)
boolean31.Type = "Fuse"
boolean31.addObjects([body33])
doc.recompute()

boolean32 = doc.addObject("PartDesign::Boolean", "Boolean031")
body34.addObject(boolean32)
boolean32.Type = "Cut"
boolean32.addObjects([body13])
doc.recompute()

boolean33 = doc.addObject("PartDesign::Boolean", "Boolean032")
body34.addObject(boolean33)
boolean33.Type = "Cut"
boolean33.addObjects([body2])

doc.recompute()
